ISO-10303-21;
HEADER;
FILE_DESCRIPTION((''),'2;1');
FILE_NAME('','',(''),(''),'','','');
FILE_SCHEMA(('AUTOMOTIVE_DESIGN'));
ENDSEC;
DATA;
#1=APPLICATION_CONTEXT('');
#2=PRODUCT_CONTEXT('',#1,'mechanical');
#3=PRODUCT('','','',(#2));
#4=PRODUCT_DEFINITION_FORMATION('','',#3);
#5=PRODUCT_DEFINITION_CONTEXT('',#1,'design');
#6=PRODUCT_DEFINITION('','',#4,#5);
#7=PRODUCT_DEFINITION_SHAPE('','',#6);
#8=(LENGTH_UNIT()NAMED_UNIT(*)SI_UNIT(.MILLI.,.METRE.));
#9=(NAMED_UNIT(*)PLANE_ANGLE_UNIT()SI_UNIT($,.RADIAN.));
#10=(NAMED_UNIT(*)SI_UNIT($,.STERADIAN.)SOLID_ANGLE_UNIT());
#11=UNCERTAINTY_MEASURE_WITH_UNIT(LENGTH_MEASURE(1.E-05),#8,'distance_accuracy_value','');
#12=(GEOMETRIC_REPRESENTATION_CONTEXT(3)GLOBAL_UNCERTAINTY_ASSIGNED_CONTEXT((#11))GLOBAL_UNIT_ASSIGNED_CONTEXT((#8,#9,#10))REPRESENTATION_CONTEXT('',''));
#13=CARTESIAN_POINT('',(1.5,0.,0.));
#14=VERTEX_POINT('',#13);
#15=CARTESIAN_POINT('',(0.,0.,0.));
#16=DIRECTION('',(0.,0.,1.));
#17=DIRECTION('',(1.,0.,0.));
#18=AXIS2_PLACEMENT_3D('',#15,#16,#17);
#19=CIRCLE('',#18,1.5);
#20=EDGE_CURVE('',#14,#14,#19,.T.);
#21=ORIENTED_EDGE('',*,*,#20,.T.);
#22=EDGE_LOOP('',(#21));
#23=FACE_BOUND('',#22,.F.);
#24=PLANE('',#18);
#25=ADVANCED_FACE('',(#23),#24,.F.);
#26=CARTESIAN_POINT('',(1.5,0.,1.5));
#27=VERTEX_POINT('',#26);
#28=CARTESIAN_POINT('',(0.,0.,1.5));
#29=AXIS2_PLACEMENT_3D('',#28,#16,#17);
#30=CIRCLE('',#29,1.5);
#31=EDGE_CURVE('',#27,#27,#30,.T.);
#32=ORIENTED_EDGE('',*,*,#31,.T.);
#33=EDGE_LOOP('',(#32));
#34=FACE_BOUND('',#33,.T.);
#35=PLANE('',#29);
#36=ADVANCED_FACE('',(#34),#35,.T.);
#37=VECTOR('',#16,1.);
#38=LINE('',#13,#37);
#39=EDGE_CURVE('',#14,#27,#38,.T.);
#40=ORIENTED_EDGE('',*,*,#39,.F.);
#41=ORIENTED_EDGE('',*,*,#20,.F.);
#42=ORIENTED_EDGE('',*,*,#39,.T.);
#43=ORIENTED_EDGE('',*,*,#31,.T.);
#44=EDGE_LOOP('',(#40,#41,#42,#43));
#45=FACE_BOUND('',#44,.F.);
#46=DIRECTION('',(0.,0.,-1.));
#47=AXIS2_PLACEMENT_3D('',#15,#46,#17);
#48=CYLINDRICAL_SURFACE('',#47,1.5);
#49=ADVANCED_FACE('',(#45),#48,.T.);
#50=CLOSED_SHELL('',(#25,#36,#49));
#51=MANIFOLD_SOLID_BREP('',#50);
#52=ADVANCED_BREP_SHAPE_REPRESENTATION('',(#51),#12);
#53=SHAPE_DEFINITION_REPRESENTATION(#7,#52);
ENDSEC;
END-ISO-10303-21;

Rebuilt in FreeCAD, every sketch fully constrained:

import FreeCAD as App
import Part
import Sketcher
from FreeCAD import Vector
Q = App.Units.Quantity

doc = App.newDocument("Part")
body = doc.addObject("PartDesign::Body", "Body")

sketch1 = body.newObject("Sketcher::SketchObject", "Sketch")
sketch1.AttachmentSupport = (doc.getObject("XY_Plane"), [""])
sketch1.MapMode = "FlatFace"
sketch1.addGeometry(Part.Circle(Vector(0, 0, 0), Vector(0, 0, 1), 1.5), False)
sketch1.addConstraint(Sketcher.Constraint("Coincident", 0, 3, -1, 1))
sketch1.addConstraint(Sketcher.Constraint("Diameter", 0, Q("3 mm")))
pad1 = body.newObject("PartDesign::Pad", "Pad")
pad1.Profile = sketch1
pad1.Length = 1.5

doc.recompute()
